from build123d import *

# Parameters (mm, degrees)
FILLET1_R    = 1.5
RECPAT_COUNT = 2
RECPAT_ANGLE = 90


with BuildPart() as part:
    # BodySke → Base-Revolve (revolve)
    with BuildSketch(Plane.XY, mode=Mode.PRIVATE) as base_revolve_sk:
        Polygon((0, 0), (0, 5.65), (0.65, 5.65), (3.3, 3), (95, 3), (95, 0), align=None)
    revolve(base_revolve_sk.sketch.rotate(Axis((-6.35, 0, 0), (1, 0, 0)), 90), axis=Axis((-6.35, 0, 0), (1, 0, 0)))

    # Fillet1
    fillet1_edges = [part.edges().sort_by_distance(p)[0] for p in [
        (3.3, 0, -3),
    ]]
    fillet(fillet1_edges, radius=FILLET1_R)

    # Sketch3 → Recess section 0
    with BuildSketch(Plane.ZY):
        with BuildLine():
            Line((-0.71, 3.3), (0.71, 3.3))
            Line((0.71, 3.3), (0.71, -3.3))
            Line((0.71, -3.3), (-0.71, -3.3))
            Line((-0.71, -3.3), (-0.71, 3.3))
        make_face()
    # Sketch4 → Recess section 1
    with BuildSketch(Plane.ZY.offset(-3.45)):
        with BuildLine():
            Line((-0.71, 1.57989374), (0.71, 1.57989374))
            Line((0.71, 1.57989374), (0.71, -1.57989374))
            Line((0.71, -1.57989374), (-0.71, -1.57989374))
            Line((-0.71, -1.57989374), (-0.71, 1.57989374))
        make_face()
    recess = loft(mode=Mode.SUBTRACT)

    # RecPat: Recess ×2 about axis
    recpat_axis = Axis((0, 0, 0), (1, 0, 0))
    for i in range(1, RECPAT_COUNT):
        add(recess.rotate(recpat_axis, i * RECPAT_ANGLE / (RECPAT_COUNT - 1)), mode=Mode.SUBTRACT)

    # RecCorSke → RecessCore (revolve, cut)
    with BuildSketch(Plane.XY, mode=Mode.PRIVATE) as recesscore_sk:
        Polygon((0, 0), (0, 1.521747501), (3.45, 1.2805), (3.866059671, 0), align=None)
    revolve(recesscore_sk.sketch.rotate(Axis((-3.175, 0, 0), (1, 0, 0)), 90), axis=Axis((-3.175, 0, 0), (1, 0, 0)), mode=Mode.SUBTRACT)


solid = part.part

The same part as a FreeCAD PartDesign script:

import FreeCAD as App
import Part
import Sketcher
from FreeCAD import Vector
Q = App.Units.Quantity


def edges_at(feature, points):
    """Names of the edges that pass closest to the given points."""
    edges = feature.Shape.Edges
    near = lambda p: min(range(len(edges)), key=lambda i: edges[i].distToShape(Part.Vertex(*p))[0])
    return sorted({f"Edge{near(p) + 1}" for p in points})

doc = App.newDocument("Part")
body = doc.addObject("PartDesign::Body", "Body")

# Sketch on XY plane
sketch1 = doc.addObject("Sketcher::SketchObject", "Sketch")
body.addObject(sketch1)
sketch1.AttachmentSupport = (doc.XY_Plane, [""])
sketch1.MapMode = "FlatFace"
sketch1.addGeometry(Part.LineSegment(Vector(0, 5.7, 0), Vector(0, 0, 0)), False)
sketch1.addGeometry(Part.LineSegment(Vector(0, 0, 0), Vector(95, 0, 0)), False)
sketch1.addGeometry(Part.LineSegment(Vector(95, 0, 0), Vector(95, 3, 0)), False)
sketch1.addGeometry(Part.LineSegment(Vector(95, 3, 0), Vector(3.3, 3, 0)), False)
sketch1.addGeometry(Part.LineSegment(Vector(3.3, 3, 0), Vector(0.7, 5.7, 0)), False)
sketch1.addGeometry(Part.LineSegment(Vector(0.7, 5.7, 0), Vector(0, 5.7, 0)), False)
sketch1.addConstraint(Sketcher.Constraint("Coincident", 0, 2, 1, 1))
sketch1.addConstraint(Sketcher.Constraint("Coincident", 1, 2, 2, 1))
sketch1.addConstraint(Sketcher.Constraint("Coincident", 2, 2, 3, 1))
sketch1.addConstraint(Sketcher.Constraint("Coincident", 3, 2, 4, 1))
sketch1.addConstraint(Sketcher.Constraint("Coincident", 4, 2, 5, 1))
sketch1.addConstraint(Sketcher.Constraint("Coincident", 5, 2, 0, 1))
sketch1.addConstraint(Sketcher.Constraint("Vertical", 0))
sketch1.addConstraint(Sketcher.Constraint("Horizontal", 1))
sketch1.addConstraint(Sketcher.Constraint("Vertical", 2))
sketch1.addConstraint(Sketcher.Constraint("Horizontal", 3))
sketch1.addConstraint(Sketcher.Constraint("Horizontal", 5))
sketch1.addConstraint(Sketcher.Constraint("Coincident", 0, 2, -1, 1))
sketch1.addConstraint(Sketcher.Constraint("DistanceX", 1, 1, 1, 2, Q("95 mm")))
sketch1.addConstraint(Sketcher.Constraint("DistanceY", 2, 1, 2, 2, Q("3 mm")))
sketch1.addConstraint(Sketcher.Constraint("Angle", 4, Q("135 deg")))
sketch1.addConstraint(Sketcher.Constraint("DistanceX", 3, 2, 3, 1, Q("91.7 mm")))
sketch1.addConstraint(Sketcher.Constraint("DistanceX", 5, 2, 5, 1, Q("0.65 mm")))
revolution = doc.addObject("PartDesign::Revolution", "Revolution")
body.addObject(revolution)
revolution.Profile = sketch1
revolution.ReferenceAxis = (sketch1, ["H_Axis"])
revolution.Angle = 360
doc.recompute()

fillet = doc.addObject("PartDesign::Fillet", "Fillet")
body.addObject(fillet)
fillet.Base = (revolution, edges_at(revolution, [(3.3, 0, -3)]))
fillet.Radius = 1.5

# Sketch on YZ plane
sketch2 = doc.addObject("Sketcher::SketchObject", "Sketch001")
body.addObject(sketch2)
sketch2.AttachmentSupport = (doc.YZ_Plane, [""])
sketch2.MapMode = "FlatFace"
sketch2.addGeometry(Part.LineSegment(Vector(3.3, 0.7, 0), Vector(3.3, -0.7, 0)), False)
sketch2.addGeometry(Part.LineSegment(Vector(3.3, -0.7, 0), Vector(-3.3, -0.7, 0)), False)
sketch2.addGeometry(Part.LineSegment(Vector(-3.3, -0.7, 0), Vector(-3.3, 0.7, 0)), False)
sketch2.addGeometry(Part.LineSegment(Vector(-3.3, 0.7, 0), Vector(3.3, 0.7, 0)), False)
sketch2.addConstraint(Sketcher.Constraint("Coincident", 0, 2, 1, 1))
sketch2.addConstraint(Sketcher.Constraint("Coincident", 1, 2, 2, 1))
sketch2.addConstraint(Sketcher.Constraint("Coincident", 2, 2, 3, 1))
sketch2.addConstraint(Sketcher.Constraint("Coincident", 3, 2, 0, 1))
sketch2.addConstraint(Sketcher.Constraint("Vertical", 0))
sketch2.addConstraint(Sketcher.Constraint("Horizontal", 1))
sketch2.addConstraint(Sketcher.Constraint("Vertical", 2))
sketch2.addConstraint(Sketcher.Constraint("Horizontal", 3))
sketch2.addConstraint(Sketcher.Constraint("Symmetric", 0, 2, 2, 2, -1, 1))
sketch2.addConstraint(Sketcher.Constraint("DistanceX", 1, 2, 1, 1, Q("6.6 mm")))
sketch2.addConstraint(Sketcher.Constraint("DistanceY", 0, 2, 0, 1, Q("1.42 mm")))

# Sketch on YZ plane
sketch3 = doc.addObject("Sketcher::SketchObject", "Sketch002")
body.addObject(sketch3)
sketch3.AttachmentSupport = (doc.YZ_Plane, [""])
sketch3.MapMode = "FlatFace"
sketch3.AttachmentOffset = App.Placement(Vector(0, 0, 3.45), App.Rotation())
sketch3.addGeometry(Part.LineSegment(Vector(1.6, 0.7, 0), Vector(1.6, -0.7, 0)), False)
sketch3.addGeometry(Part.LineSegment(Vector(1.6, -0.7, 0), Vector(-1.6, -0.7, 0)), False)
sketch3.addGeometry(Part.LineSegment(Vector(-1.6, -0.7, 0), Vector(-1.6, 0.7, 0)), False)
sketch3.addGeometry(Part.LineSegment(Vector(-1.6, 0.7, 0), Vector(1.6, 0.7, 0)), False)
sketch3.addConstraint(Sketcher.Constraint("Coincident", 0, 2, 1, 1))
sketch3.addConstraint(Sketcher.Constraint("Coincident", 1, 2, 2, 1))
sketch3.addConstraint(Sketcher.Constraint("Coincident", 2, 2, 3, 1))
sketch3.addConstraint(Sketcher.Constraint("Coincident", 3, 2, 0, 1))
sketch3.addConstraint(Sketcher.Constraint("Vertical", 0))
sketch3.addConstraint(Sketcher.Constraint("Horizontal", 1))
sketch3.addConstraint(Sketcher.Constraint("Vertical", 2))
sketch3.addConstraint(Sketcher.Constraint("Horizontal", 3))
sketch3.addConstraint(Sketcher.Constraint("Symmetric", 0, 2, 2, 2, -1, 1))
sketch3.addConstraint(Sketcher.Constraint("DistanceY", 0, 2, 0, 1, Q("1.42 mm")))
sketch3.addConstraint(Sketcher.Constraint("DistanceX", 1, 2, 1, 1, Q("3.159787 mm")))

subtractiveloft = doc.addObject("PartDesign::SubtractiveLoft", "SubtractiveLoft")
body.addObject(subtractiveloft)
subtractiveloft.Profile = sketch2
subtractiveloft.Sections = [sketch3]
doc.recompute()

polarpattern = doc.addObject("PartDesign::PolarPattern", "PolarPattern")
body.addObject(polarpattern)
polarpattern.Originals = [subtractiveloft]
polarpattern.Axis = (doc.X_Axis, [""])
polarpattern.Angle = 90
polarpattern.Occurrences = 2
body.Tip = polarpattern

# Sketch on XY plane
sketch4 = doc.addObject("Sketcher::SketchObject", "Sketch003")
body.addObject(sketch4)
sketch4.AttachmentSupport = (doc.XY_Plane, [""])
sketch4.MapMode = "FlatFace"
sketch4.addGeometry(Part.LineSegment(Vector(0, 1.5, 0), Vector(0, 0, 0)), False)
sketch4.addGeometry(Part.LineSegment(Vector(0, 0, 0), Vector(3.9, 0, 0)), False)
sketch4.addGeometry(Part.LineSegment(Vector(3.9, 0, 0), Vector(3.5, 1.3, 0)), False)
sketch4.addGeometry(Part.LineSegment(Vector(3.5, 1.3, 0), Vector(0, 1.5, 0)), False)
sketch4.addConstraint(Sketcher.Constraint("Coincident", 0, 2, 1, 1))
sketch4.addConstraint(Sketcher.Constraint("Coincident", 1, 2, 2, 1))
sketch4.addConstraint(Sketcher.Constraint("Coincident", 2, 2, 3, 1))
sketch4.addConstraint(Sketcher.Constraint("Coincident", 3, 2, 0, 1))
sketch4.addConstraint(Sketcher.Constraint("Vertical", 0))
sketch4.addConstraint(Sketcher.Constraint("Horizontal", 1))
sketch4.addConstraint(Sketcher.Constraint("Coincident", 0, 2, -1, 1))
sketch4.addConstraint(Sketcher.Constraint("Angle", 2, Q("108 deg")))
sketch4.addConstraint(Sketcher.Constraint("Angle", 3, Q("176 deg")))
sketch4.addConstraint(Sketcher.Constraint("DistanceX", -1, 1, 2, 2, Q("3.45 mm")))
sketch4.addConstraint(Sketcher.Constraint("DistanceX", 1, 1, 1, 2, Q("3.86606 mm")))
groove = doc.addObject("PartDesign::Groove", "Groove")
body.addObject(groove)
groove.Profile = sketch4
groove.ReferenceAxis = (sketch4, ["H_Axis"])
groove.Angle = 360

doc.recompute()
